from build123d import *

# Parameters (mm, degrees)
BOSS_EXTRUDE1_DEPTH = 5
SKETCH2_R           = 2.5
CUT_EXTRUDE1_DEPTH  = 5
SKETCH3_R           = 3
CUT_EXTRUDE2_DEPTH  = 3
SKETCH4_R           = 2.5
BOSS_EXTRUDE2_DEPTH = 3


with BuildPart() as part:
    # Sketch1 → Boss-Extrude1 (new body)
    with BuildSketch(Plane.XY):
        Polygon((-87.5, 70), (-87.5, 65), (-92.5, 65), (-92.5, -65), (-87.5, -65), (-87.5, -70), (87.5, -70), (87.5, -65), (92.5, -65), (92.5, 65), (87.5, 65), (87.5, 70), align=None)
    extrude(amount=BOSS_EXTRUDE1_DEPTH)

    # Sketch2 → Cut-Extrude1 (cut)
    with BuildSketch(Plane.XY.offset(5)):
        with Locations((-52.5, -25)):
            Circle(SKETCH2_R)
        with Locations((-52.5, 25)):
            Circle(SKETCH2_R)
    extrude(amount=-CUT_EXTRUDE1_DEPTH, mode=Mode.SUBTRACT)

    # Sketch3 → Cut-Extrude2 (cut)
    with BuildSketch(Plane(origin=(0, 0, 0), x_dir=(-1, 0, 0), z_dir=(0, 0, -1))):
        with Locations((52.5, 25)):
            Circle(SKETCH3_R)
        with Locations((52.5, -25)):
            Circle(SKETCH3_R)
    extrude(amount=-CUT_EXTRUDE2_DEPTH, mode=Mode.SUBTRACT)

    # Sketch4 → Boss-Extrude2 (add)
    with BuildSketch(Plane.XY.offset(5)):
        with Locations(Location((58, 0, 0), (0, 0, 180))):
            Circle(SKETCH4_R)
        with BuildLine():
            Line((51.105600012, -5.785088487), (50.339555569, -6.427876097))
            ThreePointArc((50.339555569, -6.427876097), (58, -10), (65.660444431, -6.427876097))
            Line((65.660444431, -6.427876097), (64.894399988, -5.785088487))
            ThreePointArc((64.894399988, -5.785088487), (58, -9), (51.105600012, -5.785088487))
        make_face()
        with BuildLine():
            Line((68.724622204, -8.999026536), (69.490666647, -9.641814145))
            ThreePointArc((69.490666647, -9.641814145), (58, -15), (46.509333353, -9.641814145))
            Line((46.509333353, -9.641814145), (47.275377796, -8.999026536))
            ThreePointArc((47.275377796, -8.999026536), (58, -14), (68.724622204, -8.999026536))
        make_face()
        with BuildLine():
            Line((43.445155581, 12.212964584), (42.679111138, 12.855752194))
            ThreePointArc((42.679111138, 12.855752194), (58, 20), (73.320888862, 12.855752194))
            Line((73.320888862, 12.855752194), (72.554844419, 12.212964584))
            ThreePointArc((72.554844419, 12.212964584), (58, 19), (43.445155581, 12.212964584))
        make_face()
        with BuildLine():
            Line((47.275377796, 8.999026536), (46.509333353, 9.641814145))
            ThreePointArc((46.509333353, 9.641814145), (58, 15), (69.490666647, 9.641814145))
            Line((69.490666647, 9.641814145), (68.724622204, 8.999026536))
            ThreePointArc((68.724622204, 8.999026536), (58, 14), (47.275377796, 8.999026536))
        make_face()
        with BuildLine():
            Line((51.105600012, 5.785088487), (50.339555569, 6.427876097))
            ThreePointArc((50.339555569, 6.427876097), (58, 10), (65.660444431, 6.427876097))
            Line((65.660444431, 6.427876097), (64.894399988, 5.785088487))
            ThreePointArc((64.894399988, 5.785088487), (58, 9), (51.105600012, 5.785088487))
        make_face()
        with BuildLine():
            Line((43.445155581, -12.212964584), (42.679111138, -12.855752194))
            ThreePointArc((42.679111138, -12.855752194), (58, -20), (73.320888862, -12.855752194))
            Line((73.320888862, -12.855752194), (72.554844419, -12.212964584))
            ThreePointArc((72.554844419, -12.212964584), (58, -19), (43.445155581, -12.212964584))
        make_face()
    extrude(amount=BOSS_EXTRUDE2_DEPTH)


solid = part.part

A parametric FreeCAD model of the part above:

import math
import FreeCAD as App
import Part
import Sketcher
from FreeCAD import Vector
Q = App.Units.Quantity

doc = App.newDocument("Part")
body = doc.addObject("PartDesign::Body", "Body")

# Sketch on XY plane
sketch1 = body.newObject("Sketcher::SketchObject", "Sketch")
sketch1.AttachmentSupport = (doc.getObject("XY_Plane"), [""])
sketch1.MapMode = "FlatFace"
sketch1.addGeometry([
    Part.LineSegment(Vector(-87.5, 70, 0), Vector(-87.5, 65, 0)),  # 0
    Part.LineSegment(Vector(-87.5, 65, 0), Vector(-92.5, 65, 0)),  # 1
    Part.LineSegment(Vector(-92.5, 65, 0), Vector(-92.5, -65, 0)),  # 2
    Part.LineSegment(Vector(-92.5, -65, 0), Vector(-87.5, -65, 0)),  # 3
    Part.LineSegment(Vector(-87.5, -65, 0), Vector(-87.5, -70, 0)),  # 4
    Part.LineSegment(Vector(-87.5, -70, 0), Vector(87.5, -70, 0)),  # 5
    Part.LineSegment(Vector(87.5, -70, 0), Vector(87.5, -65, 0)),  # 6
    Part.LineSegment(Vector(87.5, -65, 0), Vector(92.5, -65, 0)),  # 7
    Part.LineSegment(Vector(92.5, -65, 0), Vector(92.5, 65, 0)),  # 8
    Part.LineSegment(Vector(92.5, 65, 0), Vector(87.5, 65, 0)),  # 9
    Part.LineSegment(Vector(87.5, 65, 0), Vector(87.5, 70, 0)),  # 10
    Part.LineSegment(Vector(87.5, 70, 0), Vector(-87.5, 70, 0)),  # 11
], False)
sketch1.addConstraint([
    Sketcher.Constraint("Coincident", 0, 2, 1, 1),
    Sketcher.Constraint("Coincident", 1, 2, 2, 1),
    Sketcher.Constraint("Coincident", 2, 2, 3, 1),
    Sketcher.Constraint("Coincident", 3, 2, 4, 1),
    Sketcher.Constraint("Coincident", 4, 2, 5, 1),
    Sketcher.Constraint("Coincident", 5, 2, 6, 1),
    Sketcher.Constraint("Coincident", 6, 2, 7, 1),
    Sketcher.Constraint("Coincident", 7, 2, 8, 1),
    Sketcher.Constraint("Coincident", 8, 2, 9, 1),
    Sketcher.Constraint("Coincident", 9, 2, 10, 1),
    Sketcher.Constraint("Coincident", 10, 2, 11, 1),
    Sketcher.Constraint("Coincident", 11, 2, 0, 1),
    Sketcher.Constraint("Vertical", 0),
    Sketcher.Constraint("Horizontal", 1),
    Sketcher.Constraint("Vertical", 2),
    Sketcher.Constraint("Horizontal", 3),
    Sketcher.Constraint("Vertical", 4),
    Sketcher.Constraint("Horizontal", 5),
    Sketcher.Constraint("Vertical", 6),
    Sketcher.Constraint("Horizontal", 7),
    Sketcher.Constraint("Vertical", 8),
    Sketcher.Constraint("Horizontal", 9),
    Sketcher.Constraint("Vertical", 10),
    Sketcher.Constraint("Horizontal", 11),
    Sketcher.Constraint("Symmetric", 0, 2, 6, 2, -1, 1),
    Sketcher.Constraint("Symmetric", 2, 2, 8, 2, -1, 1),
    Sketcher.Constraint("Symmetric", 4, 2, 10, 2, -1, 1),
    Sketcher.Constraint("Symmetric", 3, 2, 6, 2, -2),
    Sketcher.Constraint("Equal", 9, 0),
    Sketcher.Constraint("DistanceX", 1, 2, 1, 1, 5.0),
    Sketcher.Constraint("DistanceX", 5, 1, 5, 2, 175.0),
    Sketcher.Constraint("DistanceY", 2, 2, 2, 1, 130.0),
])
pad1 = body.newObject("PartDesign::Pad", "Pad")
pad1.Profile = sketch1
pad1.Length = 5

# Sketch on XY plane
sketch2 = body.newObject("Sketcher::SketchObject", "Sketch001")
sketch2.AttachmentSupport = (doc.getObject("XY_Plane"), [""])
sketch2.MapMode = "FlatFace"
sketch2.AttachmentOffset = App.Placement(Vector(0, 0, 5), App.Rotation())
sketch2.addGeometry([
    Part.Circle(Vector(-52.5, -25, 0), Vector(0, 0, 1), 2.5),
    Part.Circle(Vector(-52.5, 25, 0), Vector(0, 0, 1), 2.5),
], False)
sketch2.addConstraint([
    Sketcher.Constraint("Equal", 0, 1),
    Sketcher.Constraint("Symmetric", 0, 3, 1, 3, -1),
    Sketcher.Constraint("Diameter", 0, 5.0),
    Sketcher.Constraint("DistanceY", 0, 3, -1, 1, 25.0),
    Sketcher.Constraint("DistanceX", 0, 3, -1, 1, 52.5),
])
pocket1 = body.newObject("PartDesign::Pocket", "Pocket")
pocket1.Profile = sketch2
pocket1.Length = 5

# Sketch on XY plane
sketch3 = body.newObject("Sketcher::SketchObject", "Sketch002")
sketch3.AttachmentSupport = (doc.getObject("XY_Plane"), [""])
sketch3.MapMode = "FlatFace"
sketch3.addGeometry([
    Part.Circle(Vector(-52.5, 25, 0), Vector(0, 0, 1), 3),
    Part.Circle(Vector(-52.5, -25, 0), Vector(0, 0, 1), 3),
], False)
sketch3.addConstraint([
    Sketcher.Constraint("Equal", 0, 1),
    Sketcher.Constraint("Symmetric", 0, 3, 1, 3, -1),
    Sketcher.Constraint("Diameter", 0, 6.0),
    Sketcher.Constraint("DistanceY", -1, 1, 0, 3, 25.0),
    Sketcher.Constraint("DistanceX", 0, 3, -1, 1, 52.5),
])
pocket2 = body.newObject("PartDesign::Pocket", "Pocket001")
pocket2.Profile = sketch3
pocket2.Length = 3
pocket2.Reversed = True

# Sketch on XY plane
sketch4 = body.newObject("Sketcher::SketchObject", "Sketch003")
sketch4.AttachmentSupport = (doc.getObject("XY_Plane"), [""])
sketch4.MapMode = "FlatFace"
sketch4.AttachmentOffset = App.Placement(Vector(0, 0, 5), App.Rotation())
sketch4.addGeometry([
    Part.Circle(Vector(58, 0, 0), Vector(0, 0, 1), 2.5),  # 0
    Part.LineSegment(Vector(51.1056, -5.785088, 0), Vector(50.339556, -6.427876, 0)),  # 1
    Part.ArcOfCircle(Part.Circle(Vector(58, 0, 0), Vector(0, 0, 1), 10), math.radians(-140), math.radians(-40)),  # 2
    Part.LineSegment(Vector(65.660444, -6.427876, 0), Vector(64.8944, -5.785088, 0)),  # 3
    Part.ArcOfCircle(Part.Circle(Vector(58, 0, 0), Vector(0, 0, 1), 9), math.radians(-140), math.radians(-40)),  # 4
    Part.LineSegment(Vector(69.490667, -9.641814, 0), Vector(68.724622, -8.999027, 0)),  # 5
    Part.ArcOfCircle(Part.Circle(Vector(58, 0, 0), Vector(0, 0, 1), 14), math.radians(-140), math.radians(-40)),  # 6
    Part.LineSegment(Vector(47.275378, -8.999027, 0), Vector(46.509333, -9.641814, 0)),  # 7
    Part.ArcOfCircle(Part.Circle(Vector(58, 0, 0), Vector(0, 0, 1), 15), math.radians(-140), math.radians(-40)),  # 8
    Part.LineSegment(Vector(42.679111, 12.855752, 0), Vector(43.445156, 12.212965, 0)),  # 9
    Part.ArcOfCircle(Part.Circle(Vector(58, 0, 0), Vector(0, 0, 1), 19), math.radians(40), math.radians(140)),  # 10
    Part.LineSegment(Vector(72.554844, 12.212965, 0), Vector(73.320889, 12.855752, 0)),  # 11
    Part.ArcOfCircle(Part.Circle(Vector(58, 0, 0), Vector(0, 0, 1), 20), math.radians(40), math.radians(140)),  # 12
    Part.LineSegment(Vector(46.509333, 9.641814, 0), Vector(47.275378, 8.999027, 0)),  # 13
    Part.ArcOfCircle(Part.Circle(Vector(58, 0, 0), Vector(0, 0, 1), 14), math.radians(40), math.radians(140)),  # 14
    Part.LineSegment(Vector(68.724622, 8.999027, 0), Vector(69.490667, 9.641814, 0)),  # 15
    Part.ArcOfCircle(Part.Circle(Vector(58, 0, 0), Vector(0, 0, 1), 15), math.radians(40), math.radians(140)),  # 16
    Part.LineSegment(Vector(50.339556, 6.427876, 0), Vector(51.1056, 5.785088, 0)),  # 17
    Part.ArcOfCircle(Part.Circle(Vector(58, 0, 0), Vector(0, 0, 1), 9), math.radians(40), math.radians(140)),  # 18
    Part.LineSegment(Vector(64.8944, 5.785088, 0), Vector(65.660444, 6.427876, 0)),  # 19
    Part.ArcOfCircle(Part.Circle(Vector(58, 0, 0), Vector(0, 0, 1), 10), math.radians(40), math.radians(140)),  # 20
    Part.LineSegment(Vector(43.445156, -12.212965, 0), Vector(42.679111, -12.855752, 0)),  # 21
    Part.ArcOfCircle(Part.Circle(Vector(58, 0, 0), Vector(0, 0, 1), 20), math.radians(-140), math.radians(-40)),  # 22
    Part.LineSegment(Vector(73.320889, -12.855752, 0), Vector(72.554844, -12.212965, 0)),  # 23
    Part.ArcOfCircle(Part.Circle(Vector(58, 0, 0), Vector(0, 0, 1), 19), math.radians(-140), math.radians(-40)),  # 24
], False)
sketch4.addConstraint([
    Sketcher.Constraint("Coincident", 1, 2, 2, 1),
    Sketcher.Constraint("Coincident", 2, 2, 3, 1),
    Sketcher.Constraint("Coincident", 3, 2, 4, 2),
    Sketcher.Constraint("Coincident", 4, 1, 1, 1),
    Sketcher.Constraint("Coincident", 5, 2, 6, 2),
    Sketcher.Constraint("Coincident", 6, 1, 7, 1),
    Sketcher.Constraint("Coincident", 7, 2, 8, 1),
    Sketcher.Constraint("Coincident", 8, 2, 5, 1),
    Sketcher.Constraint("Coincident", 9, 2, 10, 2),
    Sketcher.Constraint("Coincident", 10, 1, 11, 1),
    Sketcher.Constraint("Coincident", 11, 2, 12, 1),
    Sketcher.Constraint("Coincident", 12, 2, 9, 1),
    Sketcher.Constraint("Coincident", 13, 2, 14, 2),
    Sketcher.Constraint("Coincident", 14, 1, 15, 1),
    Sketcher.Constraint("Coincident", 15, 2, 16, 1),
    Sketcher.Constraint("Coincident", 16, 2, 13, 1),
    Sketcher.Constraint("Coincident", 17, 2, 18, 2),
    Sketcher.Constraint("Coincident", 18, 1, 19, 1),
    Sketcher.Constraint("Coincident", 19, 2, 20, 1),
    Sketcher.Constraint("Coincident", 20, 2, 17, 1),
    Sketcher.Constraint("Coincident", 21, 2, 22, 1),
    Sketcher.Constraint("Coincident", 22, 2, 23, 1),
    Sketcher.Constraint("Coincident", 23, 2, 24, 2),
    Sketcher.Constraint("Coincident", 24, 1, 21, 1),
    Sketcher.Constraint("Coincident", 2, 3, 0, 3),
    Sketcher.Constraint("Coincident", 4, 3, 0, 3),
    Sketcher.Constraint("Coincident", 6, 3, 0, 3),
    Sketcher.Constraint("Coincident", 8, 3, 0, 3),
    Sketcher.Constraint("Coincident", 10, 3, 0, 3),
    Sketcher.Constraint("Coincident", 12, 3, 0, 3),
    Sketcher.Constraint("Coincident", 14, 3, 0, 3),
    Sketcher.Constraint("Coincident", 16, 3, 0, 3),
    Sketcher.Constraint("Coincident", 18, 3, 0, 3),
    Sketcher.Constraint("Coincident", 20, 3, 0, 3),
    Sketcher.Constraint("Coincident", 22, 3, 0, 3),
    Sketcher.Constraint("Coincident", 24, 3, 0, 3),
    Sketcher.Constraint("Equal", 6, 14),
    Sketcher.Constraint("Equal", 8, 16),
    Sketcher.Constraint("Equal", 4, 18),
    Sketcher.Constraint("Equal", 2, 20),
    Sketcher.Constraint("Equal", 12, 22),
    Sketcher.Constraint("Equal", 10, 24),
    Sketcher.Constraint("Symmetric", 6, 1, 13, 2, -1),
    Sketcher.Constraint("Parallel", 3, 5),
    Sketcher.Constraint("Parallel", 1, 7),
    Sketcher.Constraint("Parallel", 5, 9),
    Sketcher.Constraint("Parallel", 7, 11),
    Sketcher.Constraint("Parallel", 9, 13),
    Sketcher.Constraint("Parallel", 11, 15),
    Sketcher.Constraint("Parallel", 13, 17),
    Sketcher.Constraint("Parallel", 15, 19),
    Sketcher.Constraint("Parallel", 19, 21),
    Sketcher.Constraint("Parallel", 17, 23),
    Sketcher.Constraint("Horizontal", 1, 2, 2, 2),
    Sketcher.Constraint("Horizontal", 3, 2, 4, 1),
    Sketcher.Constraint("Horizontal", 5, 2, 6, 1),
    Sketcher.Constraint("Horizontal", 9, 2, 10, 1),
    Sketcher.Constraint("Horizontal", 13, 2, 14, 1),
    Sketcher.Constraint("Horizontal", 17, 2, 18, 1),
    Sketcher.Constraint("Horizontal", 21, 2, 22, 2),
    Sketcher.Constraint("Vertical", 4, 1, 17, 2),
    Sketcher.Constraint("Vertical", 12, 2, 21, 2),
    Sketcher.Constraint("Equal", 3, 5),
    Sketcher.Constraint("Equal", 7, 9),
    Sketcher.Constraint("Diameter", 0, 5.0),
    Sketcher.Constraint("Radius", 2, 10.0),
    Sketcher.Constraint("Radius", 4, 9.0),
    Sketcher.Constraint("Radius", 6, 14.0),
    Sketcher.Constraint("Radius", 10, 19.0),
    Sketcher.Constraint("Angle", 1, Q("-140 deg")),
    Sketcher.Constraint("DistanceX", -1, 1, 0, 3, 58.0),
    Sketcher.Constraint("DistanceX", -1, 1, 3, 2, 64.8944),
    Sketcher.Constraint("DistanceX", 19, 2, 10, 1, 6.8944),
    Sketcher.Constraint("DistanceY", 5, 2, 2, 2, 2.57115),
])
pad2 = body.newObject("PartDesign::Pad", "Pad001")
pad2.Profile = sketch4
pad2.Length = 3

doc.recompute()
